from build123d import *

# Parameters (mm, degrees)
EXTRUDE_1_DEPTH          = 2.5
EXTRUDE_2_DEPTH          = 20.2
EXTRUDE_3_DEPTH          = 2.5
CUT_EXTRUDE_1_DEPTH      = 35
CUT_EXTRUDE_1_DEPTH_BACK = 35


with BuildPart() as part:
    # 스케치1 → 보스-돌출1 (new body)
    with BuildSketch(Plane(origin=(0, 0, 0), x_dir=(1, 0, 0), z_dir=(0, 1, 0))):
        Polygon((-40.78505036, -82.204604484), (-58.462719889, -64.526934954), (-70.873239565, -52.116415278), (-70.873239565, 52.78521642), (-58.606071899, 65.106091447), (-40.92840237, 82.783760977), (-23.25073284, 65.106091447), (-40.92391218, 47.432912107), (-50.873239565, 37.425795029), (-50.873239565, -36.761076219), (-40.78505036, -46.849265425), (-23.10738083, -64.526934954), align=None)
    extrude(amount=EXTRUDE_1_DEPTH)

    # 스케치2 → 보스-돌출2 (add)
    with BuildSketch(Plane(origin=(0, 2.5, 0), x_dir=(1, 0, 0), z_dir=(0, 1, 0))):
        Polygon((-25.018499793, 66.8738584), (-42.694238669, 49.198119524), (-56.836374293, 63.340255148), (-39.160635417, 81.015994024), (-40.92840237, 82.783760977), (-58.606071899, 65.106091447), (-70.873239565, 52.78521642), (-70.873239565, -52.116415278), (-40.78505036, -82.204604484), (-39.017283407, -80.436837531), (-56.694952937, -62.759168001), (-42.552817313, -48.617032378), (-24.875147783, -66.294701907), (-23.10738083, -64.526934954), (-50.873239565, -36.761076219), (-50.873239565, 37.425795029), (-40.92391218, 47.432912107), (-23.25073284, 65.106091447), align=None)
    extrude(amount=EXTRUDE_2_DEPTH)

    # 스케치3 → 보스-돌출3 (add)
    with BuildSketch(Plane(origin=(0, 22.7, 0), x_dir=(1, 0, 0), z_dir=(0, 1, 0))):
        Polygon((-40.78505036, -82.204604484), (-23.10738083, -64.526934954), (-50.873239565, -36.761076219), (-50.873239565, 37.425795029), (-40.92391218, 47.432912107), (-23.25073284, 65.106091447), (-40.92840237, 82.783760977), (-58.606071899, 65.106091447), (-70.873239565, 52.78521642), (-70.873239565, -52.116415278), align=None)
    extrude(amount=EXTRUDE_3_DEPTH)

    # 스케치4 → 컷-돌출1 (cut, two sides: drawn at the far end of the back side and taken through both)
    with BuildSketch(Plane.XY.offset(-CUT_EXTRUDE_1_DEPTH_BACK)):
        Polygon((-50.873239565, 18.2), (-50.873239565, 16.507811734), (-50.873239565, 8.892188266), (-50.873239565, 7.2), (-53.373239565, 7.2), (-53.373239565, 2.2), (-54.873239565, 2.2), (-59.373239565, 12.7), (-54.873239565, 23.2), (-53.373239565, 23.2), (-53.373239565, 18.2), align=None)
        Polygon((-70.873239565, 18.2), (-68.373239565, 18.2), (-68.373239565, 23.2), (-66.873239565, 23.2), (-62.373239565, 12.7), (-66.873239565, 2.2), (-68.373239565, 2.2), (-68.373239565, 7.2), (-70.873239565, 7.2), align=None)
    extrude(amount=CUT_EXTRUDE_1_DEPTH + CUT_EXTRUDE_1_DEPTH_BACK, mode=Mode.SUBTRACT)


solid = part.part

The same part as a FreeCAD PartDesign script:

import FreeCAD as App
import Part
import Sketcher
Q = App.Units.Quantity


def add_polygon(sketch, points):
    """Adds a closed chain of lines whose ends are joined by coincident constraints."""
    first, n = sketch.GeometryCount, len(points)
    for a, b in zip(points, points[1:] + points[:1]):
        sketch.addGeometry(Part.LineSegment(App.Vector(*a, 0), App.Vector(*b, 0)), False)
    for i in range(n):
        sketch.addConstraint(Sketcher.Constraint("Coincident", first + i, 2, first + (i + 1) % n, 1))

doc = App.newDocument("Part")
params = doc.addObject("Spreadsheet::Sheet", "Params")
for row, (alias, value) in enumerate([
    ("sketch1_length", "25 mm"),
    ("pad1_length", "2.5 mm"),
    ("sketch2_length", "20 mm"),
    ("sketch2_length2", "25 mm"),
    ("pad2_length", "20.2 mm"),
    ("sketch3_length", "25 mm"),
    ("pad3_length", "2.5 mm"),
    ("sketch4_height", "11 mm"),
    ("sketch4_height2", "5 mm"),
    ("sketch4_width", "2.5 mm"),
    ("sketch4_width2", "1.5 mm"),
    ("pocket1_length", "35 mm"),
    ("pocket1_length2", "35 mm"),
], start=1):
    params.set(f"A{row}", alias)
    params.set(f"B{row}", "=" + value)
    params.setAlias(f"B{row}", alias)

body = doc.addObject("PartDesign::Body", "Body")

# Sketch on XZ plane
sketch1 = body.newObject("Sketcher::SketchObject", "Sketch")
sketch1.AttachmentSupport = (doc.getObject("XZ_Plane"), [""])
sketch1.MapMode = "FlatFace"
add_polygon(sketch1, [(-58, 65), (-41, 82), (-23, 65), (-41, 47), (-51, 37), (-51, -37), (-41, -47), (-23, -65), (-41, -83), (-59, -65), (-71, -53), (-71, 52)])  # lines 0-11
sketch1.addConstraint([
    Sketcher.Constraint("Vertical", 4),
    Sketcher.Constraint("Vertical", 10),
    Sketcher.Constraint("Perpendicular", 0, 1),
    Sketcher.Constraint("Perpendicular", 1, 2),
    Sketcher.Constraint("Parallel", 2, 3),
    Sketcher.Constraint("Perpendicular", 3, 6),
    Sketcher.Constraint("Perpendicular", 6, 7),
    Sketcher.Constraint("Perpendicular", 7, 8),
    Sketcher.Constraint("Perpendicular", 8, 11),
    Sketcher.Constraint("Horizontal", 6, 2, 8, 2),
    Sketcher.Constraint("Horizontal", 1, 2, 11, 2),
    Sketcher.Constraint("Vertical", 0, 2, 2, 2),
    Sketcher.Constraint("Equal", 0, 1),
    Sketcher.Constraint("Equal", 2, 7),
    Sketcher.Constraint("Distance", 0, 25.0),
    Sketcher.Constraint("DistanceX", 9, 2, 4, 2, 20.0),
    Sketcher.Constraint("DistanceY", 4, 2, 4, 1, 74.186871),
    Sketcher.Constraint("DistanceY", 10, 1, 10, 2, 104.901632),
    Sketcher.Constraint("DistanceY", 4, 2, 0, 2, 119.6304),
    Sketcher.Constraint("Distance", 6, 24.99365),
    Sketcher.Constraint("DistanceX", 0, 2, -1, 1, 40.78505),
    Sketcher.Constraint("DistanceY", 6, 2, -1, 1, 65.106091),
    Sketcher.Constraint("DistanceX", 8, 2, -1, 1, 58.606072),
    Sketcher.Constraint("DistanceY", 5, 2, 3, 2, 84.193988),
])
sketch1.setExpression("Constraints[26]", "Params.sketch1_length")
pad1 = body.newObject("PartDesign::Pad", "Pad")
pad1.Profile = sketch1
pad1.setExpression("Length", "Params.pad1_length")
pad1.Reversed = True

# Sketch on XZ plane
sketch2 = body.newObject("Sketcher::SketchObject", "Sketch001")
sketch2.AttachmentSupport = (doc.getObject("XZ_Plane"), [""])
sketch2.MapMode = "FlatFace"
sketch2.AttachmentOffset = App.Placement(App.Vector(0, 0, -2.5), App.Rotation())
add_polygon(sketch2, [(-25, -66.9), (-42.7, -49.2), (-56.8, -63.3), (-39.2, -81), (-40.9, -82.8), (-58.6, -65.1), (-70.9, -52.8), (-70.9, 52.1), (-40.8, 82.2), (-39, 80.4), (-56.7, 62.8), (-42.6, 48.6), (-24.9, 66.3), (-23.1, 64.5), (-50.9, 36.8), (-50.9, -37.4), (-40.9, -47.4), (-23.3, -65.1)])  # lines 0-17
sketch2.addConstraint([
    Sketcher.Constraint("Vertical", 6),
    Sketcher.Constraint("Vertical", 14),
    Sketcher.Constraint("Perpendicular", 0, 1),
    Sketcher.Constraint("Perpendicular", 1, 2),
    Sketcher.Constraint("Perpendicular", 2, 3),
    Sketcher.Constraint("Perpendicular", 3, 4),
    Sketcher.Constraint("Perpendicular", 4, 7),
    Sketcher.Constraint("Perpendicular", 7, 8),
    Sketcher.Constraint("Perpendicular", 8, 9),
    Sketcher.Constraint("Perpendicular", 9, 10),
    Sketcher.Constraint("Perpendicular", 10, 11),
    Sketcher.Constraint("Perpendicular", 11, 12),
    Sketcher.Constraint("Perpendicular", 12, 13),
    Sketcher.Constraint("Perpendicular", 13, 16),
    Sketcher.Constraint("Perpendicular", 16, 17),
    Sketcher.Constraint("Horizontal", 4, 2, 16, 2),
    Sketcher.Constraint("Equal", 0, 2),
    Sketcher.Constraint("Equal", 3, 8),
    Sketcher.Constraint("Equal", 4, 9),
    Sketcher.Constraint("Equal", 1, 10),
    Sketcher.Constraint("Equal", 9, 11),
    Sketcher.Constraint("Equal", 8, 12),
    Sketcher.Constraint("Equal", 12, 17),
    Sketcher.Constraint("Angle", 0, Q("135 deg")),
    Sketcher.Constraint("Distance", 1, 20.0),
    Sketcher.Constraint("Distance", 4, 25.0),
    Sketcher.Constraint("DistanceX", 6, 2, 13, 2, 20.0),
    Sketcher.Constraint("DistanceX", 5, 2, 0, 2, 28.179001),
    Sketcher.Constraint("DistanceY", 6, 1, 6, 2, 104.901632),
    Sketcher.Constraint("DistanceY", 14, 2, 14, 1, 74.186871),
    Sketcher.Constraint("DistanceY", -1, 1, 11, 2, 66.294702),
    Sketcher.Constraint("DistanceX", 17, 2, -1, 1, 25.0185),
    Sketcher.Constraint("DistanceY", 2, 2, 14, 2, 43.590199),
    Sketcher.Constraint("Distance", 0, 24.99727),
    Sketcher.Constraint("Distance", 16, 24.99365),
    Sketcher.Constraint("DistanceY", 0, 2, -1, 1, 49.19812),
])
sketch2.setExpression("Constraints[42]", "Params.sketch2_length")
sketch2.setExpression("Constraints[43]", "Params.sketch2_length2")
pad2 = body.newObject("PartDesign::Pad", "Pad001")
pad2.Profile = sketch2
pad2.setExpression("Length", "Params.pad2_length")
pad2.Reversed = True

# Sketch on XZ plane
sketch3 = body.newObject("Sketcher::SketchObject", "Sketch002")
sketch3.AttachmentSupport = (doc.getObject("XZ_Plane"), [""])
sketch3.MapMode = "FlatFace"
sketch3.AttachmentOffset = App.Placement(App.Vector(0, 0, -22.7), App.Rotation())
add_polygon(sketch3, [(-41, 82), (-23, 65), (-51, 37), (-51, -37), (-41, -47), (-23, -65), (-41, -83), (-59, -65), (-71, -53), (-71, 52)])  # lines 0-9
sketch3.addConstraint([
    Sketcher.Constraint("Vertical", 2),
    Sketcher.Constraint("Vertical", 8),
    Sketcher.Constraint("Perpendicular", 0, 1),
    Sketcher.Constraint("Perpendicular", 1, 4),
    Sketcher.Constraint("Perpendicular", 4, 5),
    Sketcher.Constraint("Perpendicular", 5, 6),
    Sketcher.Constraint("Perpendicular", 6, 9),
    Sketcher.Constraint("Horizontal", 4, 2, 6, 2),
    Sketcher.Constraint("Equal", 0, 5),
    Sketcher.Constraint("Equal", 5, 6),
    Sketcher.Constraint("Distance", 0, 25.0),
    Sketcher.Constraint("DistanceX", 7, 2, 2, 2, 20.0),
    Sketcher.Constraint("DistanceY", 2, 2, 2, 1, 74.186871),
    Sketcher.Constraint("DistanceY", 8, 1, 8, 2, 104.901632),
    Sketcher.Constraint("DistanceY", 2, 2, 9, 2, 119.6304),
    Sketcher.Constraint("Distance", 4, 24.99365),
    Sketcher.Constraint("DistanceX", 0, 2, -1, 1, 23.107381),
    Sketcher.Constraint("DistanceY", 4, 2, -1, 1, 65.106091),
    Sketcher.Constraint("DistanceX", 6, 2, -1, 1, 58.606072),
    Sketcher.Constraint("DistanceY", 3, 2, 1, 2, 84.193988),
])
sketch3.setExpression("Constraints[20]", "Params.sketch3_length")
pad3 = body.newObject("PartDesign::Pad", "Pad002")
pad3.Profile = sketch3
pad3.setExpression("Length", "Params.pad3_length")
pad3.Reversed = True

# Sketch on XY plane
sketch4 = body.newObject("Sketcher::SketchObject", "Sketch003")
sketch4.AttachmentSupport = (doc.getObject("XY_Plane"), [""])
sketch4.MapMode = "FlatFace"
add_polygon(sketch4, [(-50.9, 7.2), (-50.9, 18.2), (-53.4, 18.2), (-53.4, 23.2), (-54.9, 23.2), (-59.4, 12.7), (-54.9, 2.2), (-53.4, 2.2), (-53.4, 7.2)])  # lines 0-8
add_polygon(sketch4, [(-68.4, 18.2), (-70.9, 18.2), (-70.9, 7.2), (-68.4, 7.2), (-68.4, 2.2), (-66.9, 2.2), (-62.4, 12.7), (-66.9, 23.2), (-68.4, 23.2)])  # lines 9-17
sketch4.addConstraint([
    Sketcher.Constraint("Vertical", 0),
    Sketcher.Constraint("Horizontal", 1),
    Sketcher.Constraint("Vertical", 2),
    Sketcher.Constraint("Horizontal", 3),
    Sketcher.Constraint("Horizontal", 6),
    Sketcher.Constraint("Vertical", 7),
    Sketcher.Constraint("Horizontal", 8),
    Sketcher.Constraint("Horizontal", 9),
    Sketcher.Constraint("Vertical", 10),
    Sketcher.Constraint("Horizontal", 11),
    Sketcher.Constraint("Vertical", 12),
    Sketcher.Constraint("Horizontal", 13),
    Sketcher.Constraint("Horizontal", 16),
    Sketcher.Constraint("Vertical", 17),
    Sketcher.Constraint("Parallel", 4, 14),
    Sketcher.Constraint("Parallel", 5, 15),
    Sketcher.Constraint("Horizontal", 1, 2, 9, 2),
    Sketcher.Constraint("Horizontal", 8, 2, 10, 2),
    Sketcher.Constraint("Horizontal", 6, 2, 12, 2),
    Sketcher.Constraint("Horizontal", 4, 2, 14, 2),
    Sketcher.Constraint("Horizontal", 3, 2, 15, 2),
    Sketcher.Constraint("Vertical", 3, 2, 5, 2),
    Sketcher.Constraint("Vertical", 2, 2, 6, 2),
    Sketcher.Constraint("Vertical", 13, 2, 15, 2),
    Sketcher.Constraint("Vertical", 12, 2, 16, 2),
    Sketcher.Constraint("Equal", 8, 9),
    Sketcher.Constraint("Equal", 6, 13),
    Sketcher.Constraint("Equal", 2, 7),
    Sketcher.Constraint("DistanceY", 0, 1, 0, 2, 11.0),
    Sketcher.Constraint("DistanceY", 2, 1, 2, 2, 5.0),
    Sketcher.Constraint("DistanceX", 1, 2, 1, 1, 2.5),
    Sketcher.Constraint("DistanceX", 3, 2, 3, 1, 1.5),
    Sketcher.Constraint("DistanceX", 4, 2, 1, 2, 6.0),
    Sketcher.Constraint("DistanceX", 9, 2, 3, 2, 16.0),
    Sketcher.Constraint("DistanceY", -1, 1, 0, 2, 18.2),
    Sketcher.Constraint("DistanceX", 0, 2, -1, 1, 50.87324),
])
sketch4.setExpression("Constraints[46]", "Params.sketch4_height")
sketch4.setExpression("Constraints[47]", "Params.sketch4_height2")
sketch4.setExpression("Constraints[48]", "Params.sketch4_width")
sketch4.setExpression("Constraints[49]", "Params.sketch4_width2")
pocket1 = body.newObject("PartDesign::Pocket", "Pocket")
pocket1.Profile = sketch4
pocket1.Type = "TwoLengths"
pocket1.setExpression("Length", "Params.pocket1_length")
pocket1.setExpression("Length2", "Params.pocket1_length2")
pocket1.Reversed = True

doc.recompute()
